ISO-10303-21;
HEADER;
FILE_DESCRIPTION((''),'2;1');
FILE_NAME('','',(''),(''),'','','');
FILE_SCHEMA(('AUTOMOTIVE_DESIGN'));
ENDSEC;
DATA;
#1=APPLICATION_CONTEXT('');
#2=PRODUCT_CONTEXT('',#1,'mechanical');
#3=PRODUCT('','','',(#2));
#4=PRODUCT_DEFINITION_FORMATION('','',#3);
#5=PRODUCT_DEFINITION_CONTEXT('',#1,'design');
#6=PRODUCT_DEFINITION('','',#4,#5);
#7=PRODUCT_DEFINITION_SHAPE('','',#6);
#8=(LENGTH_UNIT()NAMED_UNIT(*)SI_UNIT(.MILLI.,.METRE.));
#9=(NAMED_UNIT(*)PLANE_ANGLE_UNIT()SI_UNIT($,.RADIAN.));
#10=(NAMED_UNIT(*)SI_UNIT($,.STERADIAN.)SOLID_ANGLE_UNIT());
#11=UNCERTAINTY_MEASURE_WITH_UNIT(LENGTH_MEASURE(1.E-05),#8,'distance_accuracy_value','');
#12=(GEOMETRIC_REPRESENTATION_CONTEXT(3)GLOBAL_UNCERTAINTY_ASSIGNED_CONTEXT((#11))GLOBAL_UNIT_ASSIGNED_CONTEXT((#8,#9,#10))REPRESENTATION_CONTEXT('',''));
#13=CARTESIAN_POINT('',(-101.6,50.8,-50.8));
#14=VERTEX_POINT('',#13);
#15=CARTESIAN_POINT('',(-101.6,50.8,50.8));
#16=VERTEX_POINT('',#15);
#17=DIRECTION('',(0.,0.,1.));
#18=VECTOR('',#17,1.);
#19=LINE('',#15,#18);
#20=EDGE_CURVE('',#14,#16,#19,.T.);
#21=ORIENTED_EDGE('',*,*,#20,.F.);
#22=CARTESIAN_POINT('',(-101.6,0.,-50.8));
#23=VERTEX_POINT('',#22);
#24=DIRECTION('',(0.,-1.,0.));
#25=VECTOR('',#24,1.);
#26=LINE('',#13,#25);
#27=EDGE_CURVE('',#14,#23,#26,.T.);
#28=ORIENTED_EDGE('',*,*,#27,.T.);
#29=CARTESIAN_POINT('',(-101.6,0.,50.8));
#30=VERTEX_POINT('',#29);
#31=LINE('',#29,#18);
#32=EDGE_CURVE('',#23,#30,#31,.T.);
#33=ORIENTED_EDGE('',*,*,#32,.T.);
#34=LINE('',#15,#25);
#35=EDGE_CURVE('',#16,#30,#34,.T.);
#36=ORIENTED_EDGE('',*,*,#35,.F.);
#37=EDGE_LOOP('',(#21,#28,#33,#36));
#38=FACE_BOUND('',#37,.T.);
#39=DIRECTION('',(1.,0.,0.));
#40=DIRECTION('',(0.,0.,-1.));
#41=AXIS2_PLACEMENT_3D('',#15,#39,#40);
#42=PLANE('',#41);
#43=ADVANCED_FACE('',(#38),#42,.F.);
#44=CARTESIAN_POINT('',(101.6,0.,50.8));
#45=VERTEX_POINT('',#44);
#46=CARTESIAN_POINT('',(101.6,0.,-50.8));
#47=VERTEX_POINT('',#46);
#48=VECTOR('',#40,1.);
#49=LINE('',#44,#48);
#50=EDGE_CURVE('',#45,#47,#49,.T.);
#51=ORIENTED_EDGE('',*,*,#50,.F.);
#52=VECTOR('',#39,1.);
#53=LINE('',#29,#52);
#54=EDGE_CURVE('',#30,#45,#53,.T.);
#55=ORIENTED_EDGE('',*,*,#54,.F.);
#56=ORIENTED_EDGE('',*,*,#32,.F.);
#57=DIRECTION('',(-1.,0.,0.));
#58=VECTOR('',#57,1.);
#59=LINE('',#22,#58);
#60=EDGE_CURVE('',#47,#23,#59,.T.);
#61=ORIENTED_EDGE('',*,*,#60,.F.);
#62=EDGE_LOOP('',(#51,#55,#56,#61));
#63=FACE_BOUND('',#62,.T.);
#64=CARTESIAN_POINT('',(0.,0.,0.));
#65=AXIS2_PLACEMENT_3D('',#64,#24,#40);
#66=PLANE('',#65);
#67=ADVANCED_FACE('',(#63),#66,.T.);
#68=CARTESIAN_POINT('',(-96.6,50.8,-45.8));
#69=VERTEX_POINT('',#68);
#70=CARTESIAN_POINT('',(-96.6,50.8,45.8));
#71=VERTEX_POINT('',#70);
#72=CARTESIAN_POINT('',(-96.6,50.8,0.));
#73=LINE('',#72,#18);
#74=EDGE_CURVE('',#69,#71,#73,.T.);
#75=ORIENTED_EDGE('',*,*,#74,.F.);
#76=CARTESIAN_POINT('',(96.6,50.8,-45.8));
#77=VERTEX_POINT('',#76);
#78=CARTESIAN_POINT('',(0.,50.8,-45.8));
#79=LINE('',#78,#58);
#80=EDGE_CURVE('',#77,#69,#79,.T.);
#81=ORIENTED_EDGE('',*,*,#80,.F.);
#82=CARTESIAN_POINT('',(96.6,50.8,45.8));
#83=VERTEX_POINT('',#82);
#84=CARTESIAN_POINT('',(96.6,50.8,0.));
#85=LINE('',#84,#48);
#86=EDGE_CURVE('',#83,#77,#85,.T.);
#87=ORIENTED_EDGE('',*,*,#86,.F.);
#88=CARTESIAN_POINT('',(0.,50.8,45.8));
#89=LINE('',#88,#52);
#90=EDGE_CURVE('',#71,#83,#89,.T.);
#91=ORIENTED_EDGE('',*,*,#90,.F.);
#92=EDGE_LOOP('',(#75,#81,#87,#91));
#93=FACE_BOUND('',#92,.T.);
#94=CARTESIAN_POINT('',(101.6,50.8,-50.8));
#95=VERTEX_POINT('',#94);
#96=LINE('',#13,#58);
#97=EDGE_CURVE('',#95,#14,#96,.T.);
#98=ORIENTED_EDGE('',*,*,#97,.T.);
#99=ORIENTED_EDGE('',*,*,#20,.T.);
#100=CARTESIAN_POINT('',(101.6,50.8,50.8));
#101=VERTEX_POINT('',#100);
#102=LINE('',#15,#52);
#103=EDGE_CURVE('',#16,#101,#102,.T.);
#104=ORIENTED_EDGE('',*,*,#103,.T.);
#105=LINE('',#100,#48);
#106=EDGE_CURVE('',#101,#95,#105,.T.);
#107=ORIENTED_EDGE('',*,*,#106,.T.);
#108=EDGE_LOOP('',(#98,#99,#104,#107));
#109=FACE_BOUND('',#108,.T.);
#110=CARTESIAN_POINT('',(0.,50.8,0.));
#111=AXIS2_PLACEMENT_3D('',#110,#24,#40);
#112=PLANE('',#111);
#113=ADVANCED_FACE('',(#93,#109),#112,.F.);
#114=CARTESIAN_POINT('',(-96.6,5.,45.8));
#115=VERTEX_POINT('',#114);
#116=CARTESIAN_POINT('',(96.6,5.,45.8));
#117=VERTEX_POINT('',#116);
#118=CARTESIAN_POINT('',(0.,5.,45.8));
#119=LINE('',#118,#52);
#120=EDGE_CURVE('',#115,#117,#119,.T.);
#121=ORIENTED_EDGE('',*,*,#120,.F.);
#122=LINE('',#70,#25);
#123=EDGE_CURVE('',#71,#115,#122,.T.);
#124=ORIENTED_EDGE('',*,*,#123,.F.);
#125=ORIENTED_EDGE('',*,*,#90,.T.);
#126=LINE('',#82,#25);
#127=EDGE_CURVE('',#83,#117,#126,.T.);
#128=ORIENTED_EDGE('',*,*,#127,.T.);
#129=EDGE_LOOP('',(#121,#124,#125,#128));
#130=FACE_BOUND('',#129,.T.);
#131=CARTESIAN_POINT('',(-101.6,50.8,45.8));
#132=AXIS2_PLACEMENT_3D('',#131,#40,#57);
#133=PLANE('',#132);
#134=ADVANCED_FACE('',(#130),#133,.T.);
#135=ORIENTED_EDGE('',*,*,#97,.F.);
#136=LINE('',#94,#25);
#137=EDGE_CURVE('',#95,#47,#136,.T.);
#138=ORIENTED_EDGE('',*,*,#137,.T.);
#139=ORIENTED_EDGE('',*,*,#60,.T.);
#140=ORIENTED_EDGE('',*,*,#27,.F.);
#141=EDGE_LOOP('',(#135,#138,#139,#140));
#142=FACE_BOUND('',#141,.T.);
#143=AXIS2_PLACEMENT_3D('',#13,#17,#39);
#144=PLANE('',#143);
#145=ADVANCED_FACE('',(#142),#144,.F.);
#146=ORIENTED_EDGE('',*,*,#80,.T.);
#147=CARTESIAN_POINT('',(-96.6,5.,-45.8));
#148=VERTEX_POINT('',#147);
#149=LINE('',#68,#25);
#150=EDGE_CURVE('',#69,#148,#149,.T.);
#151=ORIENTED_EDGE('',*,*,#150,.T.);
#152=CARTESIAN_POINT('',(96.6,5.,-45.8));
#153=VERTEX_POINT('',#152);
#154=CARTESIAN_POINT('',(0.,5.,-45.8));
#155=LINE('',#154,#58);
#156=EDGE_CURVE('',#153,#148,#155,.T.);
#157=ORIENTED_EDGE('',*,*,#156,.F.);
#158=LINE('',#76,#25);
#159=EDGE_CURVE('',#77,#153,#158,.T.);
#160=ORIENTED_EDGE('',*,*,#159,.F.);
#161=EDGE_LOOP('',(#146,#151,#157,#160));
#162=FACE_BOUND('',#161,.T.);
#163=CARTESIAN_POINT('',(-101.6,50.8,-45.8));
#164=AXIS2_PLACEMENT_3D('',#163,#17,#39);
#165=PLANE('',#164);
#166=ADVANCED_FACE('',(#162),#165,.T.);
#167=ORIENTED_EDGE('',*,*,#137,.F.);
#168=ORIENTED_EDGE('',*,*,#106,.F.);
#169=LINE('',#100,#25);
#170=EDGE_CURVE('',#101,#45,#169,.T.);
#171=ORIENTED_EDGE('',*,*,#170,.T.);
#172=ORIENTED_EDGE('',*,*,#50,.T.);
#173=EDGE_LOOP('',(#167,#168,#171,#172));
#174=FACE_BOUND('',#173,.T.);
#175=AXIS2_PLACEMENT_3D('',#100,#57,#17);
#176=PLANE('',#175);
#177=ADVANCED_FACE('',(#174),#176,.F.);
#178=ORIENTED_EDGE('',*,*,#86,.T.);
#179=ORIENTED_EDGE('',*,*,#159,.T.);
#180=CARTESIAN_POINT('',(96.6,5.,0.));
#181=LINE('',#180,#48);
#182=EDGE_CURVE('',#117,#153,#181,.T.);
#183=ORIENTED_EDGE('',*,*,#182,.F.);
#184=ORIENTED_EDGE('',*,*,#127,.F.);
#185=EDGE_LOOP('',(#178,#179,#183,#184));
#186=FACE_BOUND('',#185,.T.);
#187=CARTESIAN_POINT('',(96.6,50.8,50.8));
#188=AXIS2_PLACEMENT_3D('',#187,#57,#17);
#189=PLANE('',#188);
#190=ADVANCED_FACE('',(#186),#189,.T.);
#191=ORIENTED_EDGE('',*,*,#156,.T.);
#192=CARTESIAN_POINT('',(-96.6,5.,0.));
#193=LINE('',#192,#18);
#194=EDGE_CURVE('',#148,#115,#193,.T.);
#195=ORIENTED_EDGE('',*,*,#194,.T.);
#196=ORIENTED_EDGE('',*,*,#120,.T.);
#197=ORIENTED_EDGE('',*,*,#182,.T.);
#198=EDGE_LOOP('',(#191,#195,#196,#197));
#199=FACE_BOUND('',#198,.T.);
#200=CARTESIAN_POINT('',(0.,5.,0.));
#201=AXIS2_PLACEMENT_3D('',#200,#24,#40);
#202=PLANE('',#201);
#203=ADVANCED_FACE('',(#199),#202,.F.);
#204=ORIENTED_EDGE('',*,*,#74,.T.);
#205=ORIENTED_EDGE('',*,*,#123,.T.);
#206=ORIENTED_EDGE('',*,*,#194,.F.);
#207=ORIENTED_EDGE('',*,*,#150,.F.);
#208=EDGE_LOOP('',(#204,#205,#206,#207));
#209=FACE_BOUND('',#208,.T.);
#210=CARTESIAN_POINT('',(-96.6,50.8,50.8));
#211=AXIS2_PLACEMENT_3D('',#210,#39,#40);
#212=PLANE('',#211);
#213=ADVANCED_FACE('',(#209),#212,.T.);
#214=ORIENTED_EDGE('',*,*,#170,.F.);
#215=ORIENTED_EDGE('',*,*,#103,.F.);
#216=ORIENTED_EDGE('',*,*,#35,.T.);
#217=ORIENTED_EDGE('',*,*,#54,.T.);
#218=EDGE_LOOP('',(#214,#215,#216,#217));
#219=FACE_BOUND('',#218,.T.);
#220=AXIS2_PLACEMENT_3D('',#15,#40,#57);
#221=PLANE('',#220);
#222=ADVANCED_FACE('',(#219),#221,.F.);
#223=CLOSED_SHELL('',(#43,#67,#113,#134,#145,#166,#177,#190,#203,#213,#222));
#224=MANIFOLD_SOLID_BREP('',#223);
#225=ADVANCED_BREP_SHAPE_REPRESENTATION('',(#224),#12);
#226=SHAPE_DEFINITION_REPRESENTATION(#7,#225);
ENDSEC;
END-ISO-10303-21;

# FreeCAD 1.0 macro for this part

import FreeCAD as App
import Part
import Sketcher
Q = App.Units.Quantity


def faces_at(feature, points):
    """Names of the faces that lie closest to the given points."""
    faces = feature.Shape.Faces
    near = lambda p: min(range(len(faces)), key=lambda i: faces[i].distToShape(Part.Vertex(*p))[0])
    return sorted({f"Face{near(p) + 1}" for p in points})

doc = App.newDocument("Part")
body = doc.addObject("PartDesign::Body", "Body")

sketch1 = body.newObject("Sketcher::SketchObject", "Sketch")
sketch1.AttachmentSupport = (doc.getObject("XZ_Plane"), [""])
sketch1.MapMode = "FlatFace"
sketch1.addGeometry(Part.LineSegment(App.Vector(-102, -51, 0), App.Vector(-102, 51, 0)), False)
sketch1.addGeometry(Part.LineSegment(App.Vector(-102, 51, 0), App.Vector(102, 51, 0)), False)
sketch1.addGeometry(Part.LineSegment(App.Vector(102, 51, 0), App.Vector(102, -51, 0)), False)
sketch1.addGeometry(Part.LineSegment(App.Vector(102, -51, 0), App.Vector(-102, -51, 0)), False)
sketch1.addConstraint(Sketcher.Constraint("Coincident", 0, 2, 1, 1))
sketch1.addConstraint(Sketcher.Constraint("Coincident", 1, 2, 2, 1))
sketch1.addConstraint(Sketcher.Constraint("Coincident", 2, 2, 3, 1))
sketch1.addConstraint(Sketcher.Constraint("Coincident", 3, 2, 0, 1))
sketch1.addConstraint(Sketcher.Constraint("Vertical", 0))
sketch1.addConstraint(Sketcher.Constraint("Horizontal", 1))
sketch1.addConstraint(Sketcher.Constraint("Vertical", 2))
sketch1.addConstraint(Sketcher.Constraint("Horizontal", 3))
sketch1.addConstraint(Sketcher.Constraint("Symmetric", 0, 2, 2, 2, -1, 1))
sketch1.addConstraint(Sketcher.Constraint("DistanceX", 1, 1, 1, 2, Q("8 in")))
sketch1.addConstraint(Sketcher.Constraint("DistanceY", 0, 1, 0, 2, Q("4 in")))
pad1 = body.newObject("PartDesign::Pad", "Pad")
pad1.Profile = sketch1
pad1.Length = Q("2 in")
pad1.Reversed = True
doc.recompute()

thickness = body.newObject("PartDesign::Thickness", "Thickness")
thickness.Base = (pad1, faces_at(pad1, [(0, 50.8, 0)]))
thickness.Value = 5
thickness.Reversed = True
thickness.Join = "Intersection"

doc.recompute()
